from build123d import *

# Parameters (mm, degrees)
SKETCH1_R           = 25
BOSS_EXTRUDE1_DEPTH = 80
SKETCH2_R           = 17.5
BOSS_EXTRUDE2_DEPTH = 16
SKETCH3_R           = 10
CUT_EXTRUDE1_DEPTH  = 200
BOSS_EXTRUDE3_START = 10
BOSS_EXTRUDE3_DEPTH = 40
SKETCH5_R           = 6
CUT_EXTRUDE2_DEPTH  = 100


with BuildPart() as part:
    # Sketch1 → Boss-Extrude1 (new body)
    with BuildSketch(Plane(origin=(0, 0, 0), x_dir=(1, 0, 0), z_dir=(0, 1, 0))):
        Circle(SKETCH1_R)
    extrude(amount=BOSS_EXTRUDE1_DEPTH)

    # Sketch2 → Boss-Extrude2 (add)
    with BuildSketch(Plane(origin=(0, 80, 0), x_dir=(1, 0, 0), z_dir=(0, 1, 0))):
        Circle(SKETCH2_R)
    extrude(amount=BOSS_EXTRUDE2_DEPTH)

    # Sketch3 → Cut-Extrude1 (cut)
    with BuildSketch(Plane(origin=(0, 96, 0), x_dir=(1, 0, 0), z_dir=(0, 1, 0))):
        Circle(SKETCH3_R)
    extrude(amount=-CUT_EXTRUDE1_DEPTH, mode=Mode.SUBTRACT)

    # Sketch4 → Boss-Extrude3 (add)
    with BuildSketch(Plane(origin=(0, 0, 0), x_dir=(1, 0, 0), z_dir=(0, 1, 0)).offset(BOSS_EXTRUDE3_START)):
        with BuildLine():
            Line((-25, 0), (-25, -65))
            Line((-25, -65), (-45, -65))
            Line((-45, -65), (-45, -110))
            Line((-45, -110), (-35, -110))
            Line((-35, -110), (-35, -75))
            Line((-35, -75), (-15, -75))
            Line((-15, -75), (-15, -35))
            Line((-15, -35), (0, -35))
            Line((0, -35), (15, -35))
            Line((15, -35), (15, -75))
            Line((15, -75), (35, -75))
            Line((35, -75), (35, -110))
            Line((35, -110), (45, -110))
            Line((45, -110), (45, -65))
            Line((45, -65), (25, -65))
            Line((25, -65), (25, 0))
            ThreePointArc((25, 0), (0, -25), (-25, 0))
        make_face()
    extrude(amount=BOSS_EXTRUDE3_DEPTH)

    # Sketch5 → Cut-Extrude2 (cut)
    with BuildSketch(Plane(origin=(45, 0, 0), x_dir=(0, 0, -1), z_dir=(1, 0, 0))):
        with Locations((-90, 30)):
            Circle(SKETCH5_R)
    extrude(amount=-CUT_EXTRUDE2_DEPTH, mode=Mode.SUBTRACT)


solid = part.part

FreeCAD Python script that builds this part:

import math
import FreeCAD as App
import Part
import Sketcher
from FreeCAD import Vector

doc = App.newDocument("Part")
body = doc.addObject("PartDesign::Body", "Body")

sketch1 = doc.addObject("Sketcher::SketchObject", "Sketch")
body.addObject(sketch1)
sketch1.AttachmentSupport = (doc.XZ_Plane, [""])
sketch1.MapMode = "FlatFace"
sketch1.addGeometry(Part.Circle(Vector(0, 0, 0), Vector(0, 0, 1), 25), False)
sketch1.addConstraint(Sketcher.Constraint("Coincident", 0, 3, -1, 1))
sketch1.addConstraint(Sketcher.Constraint("Diameter", 0, 50.0))
pad1 = doc.addObject("PartDesign::Pad", "Pad")
body.addObject(pad1)
pad1.Profile = sketch1
pad1.Length = 80
pad1.Reversed = True

sketch2 = doc.addObject("Sketcher::SketchObject", "Sketch001")
body.addObject(sketch2)
sketch2.AttachmentSupport = (doc.XZ_Plane, [""])
sketch2.MapMode = "FlatFace"
sketch2.AttachmentOffset = App.Placement(Vector(0, 0, -80), App.Rotation())
sketch2.addGeometry(Part.Circle(Vector(0, 0, 0), Vector(0, 0, 1), 17.5), False)
sketch2.addConstraint(Sketcher.Constraint("Coincident", 0, 3, -1, 1))
sketch2.addConstraint(Sketcher.Constraint("Diameter", 0, 35.0))
pad2 = doc.addObject("PartDesign::Pad", "Pad001")
body.addObject(pad2)
pad2.Profile = sketch2
pad2.Length = 16
pad2.Reversed = True

sketch3 = doc.addObject("Sketcher::SketchObject", "Sketch002")
body.addObject(sketch3)
sketch3.AttachmentSupport = (doc.XZ_Plane, [""])
sketch3.MapMode = "FlatFace"
sketch3.AttachmentOffset = App.Placement(Vector(0, 0, -96), App.Rotation())
sketch3.addGeometry(Part.Circle(Vector(0, 0, 0), Vector(0, 0, 1), 10), False)
sketch3.addConstraint(Sketcher.Constraint("Coincident", 0, 3, -1, 1))
sketch3.addConstraint(Sketcher.Constraint("Diameter", 0, 20.0))
pocket1 = doc.addObject("PartDesign::Pocket", "Pocket")
body.addObject(pocket1)
pocket1.Profile = sketch3
pocket1.Length = 200
pocket1.Reversed = True

sketch4 = doc.addObject("Sketcher::SketchObject", "Sketch003")
body.addObject(sketch4)
sketch4.AttachmentSupport = (doc.XZ_Plane, [""])
sketch4.MapMode = "FlatFace"
sketch4.AttachmentOffset = App.Placement(Vector(0, 0, -10), App.Rotation())
sketch4.addGeometry(Part.LineSegment(Vector(-25, 0, 0), Vector(-25, 65, 0)), False)
sketch4.addGeometry(Part.LineSegment(Vector(-25, 65, 0), Vector(-45, 65, 0)), False)
sketch4.addGeometry(Part.LineSegment(Vector(-45, 65, 0), Vector(-45, 110, 0)), False)
sketch4.addGeometry(Part.LineSegment(Vector(-45, 110, 0), Vector(-35, 110, 0)), False)
sketch4.addGeometry(Part.LineSegment(Vector(-35, 110, 0), Vector(-35, 75, 0)), False)
sketch4.addGeometry(Part.LineSegment(Vector(-35, 75, 0), Vector(-15, 75, 0)), False)
sketch4.addGeometry(Part.LineSegment(Vector(-15, 75, 0), Vector(-15, 35, 0)), False)
sketch4.addGeometry(Part.LineSegment(Vector(-15, 35, 0), Vector(15, 35, 0)), False)
sketch4.addGeometry(Part.LineSegment(Vector(15, 35, 0), Vector(15, 75, 0)), False)
sketch4.addGeometry(Part.LineSegment(Vector(15, 75, 0), Vector(35, 75, 0)), False)
sketch4.addGeometry(Part.LineSegment(Vector(35, 75, 0), Vector(35, 110, 0)), False)
sketch4.addGeometry(Part.LineSegment(Vector(35, 110, 0), Vector(45, 110, 0)), False)
sketch4.addGeometry(Part.LineSegment(Vector(45, 110, 0), Vector(45, 65, 0)), False)
sketch4.addGeometry(Part.LineSegment(Vector(45, 65, 0), Vector(25, 65, 0)), False)
sketch4.addGeometry(Part.LineSegment(Vector(25, 65, 0), Vector(25, 0, 0)), False)
sketch4.addGeometry(Part.ArcOfCircle(Part.Circle(Vector(0, 0, 0), Vector(0, 0, 1), 25), math.radians(0), math.radians(180)), False)
sketch4.addConstraint(Sketcher.Constraint("Coincident", 0, 2, 1, 1))
sketch4.addConstraint(Sketcher.Constraint("Coincident", 1, 2, 2, 1))
sketch4.addConstraint(Sketcher.Constraint("Coincident", 2, 2, 3, 1))
sketch4.addConstraint(Sketcher.Constraint("Coincident", 3, 2, 4, 1))
sketch4.addConstraint(Sketcher.Constraint("Coincident", 4, 2, 5, 1))
sketch4.addConstraint(Sketcher.Constraint("Coincident", 5, 2, 6, 1))
sketch4.addConstraint(Sketcher.Constraint("Coincident", 6, 2, 7, 1))
sketch4.addConstraint(Sketcher.Constraint("Coincident", 7, 2, 8, 1))
sketch4.addConstraint(Sketcher.Constraint("Coincident", 8, 2, 9, 1))
sketch4.addConstraint(Sketcher.Constraint("Coincident", 9, 2, 10, 1))
sketch4.addConstraint(Sketcher.Constraint("Coincident", 10, 2, 11, 1))
sketch4.addConstraint(Sketcher.Constraint("Coincident", 11, 2, 12, 1))
sketch4.addConstraint(Sketcher.Constraint("Coincident", 12, 2, 13, 1))
sketch4.addConstraint(Sketcher.Constraint("Coincident", 13, 2, 14, 1))
sketch4.addConstraint(Sketcher.Constraint("Tangent", 14, 2, 15, 1))
sketch4.addConstraint(Sketcher.Constraint("Tangent", 15, 2, 0, 1))
sketch4.addConstraint(Sketcher.Constraint("Vertical", 0))
sketch4.addConstraint(Sketcher.Constraint("Horizontal", 1))
sketch4.addConstraint(Sketcher.Constraint("Vertical", 2))
sketch4.addConstraint(Sketcher.Constraint("Horizontal", 3))
sketch4.addConstraint(Sketcher.Constraint("Vertical", 4))
sketch4.addConstraint(Sketcher.Constraint("Horizontal", 5))
sketch4.addConstraint(Sketcher.Constraint("Vertical", 6))
sketch4.addConstraint(Sketcher.Constraint("Horizontal", 7))
sketch4.addConstraint(Sketcher.Constraint("Vertical", 8))
sketch4.addConstraint(Sketcher.Constraint("Horizontal", 9))
sketch4.addConstraint(Sketcher.Constraint("Vertical", 10))
sketch4.addConstraint(Sketcher.Constraint("Horizontal", 11))
sketch4.addConstraint(Sketcher.Constraint("Vertical", 12))
sketch4.addConstraint(Sketcher.Constraint("Horizontal", 13))
sketch4.addConstraint(Sketcher.Constraint("Vertical", 14))
sketch4.addConstraint(Sketcher.Constraint("Coincident", 15, 3, -1, 1))
sketch4.addConstraint(Sketcher.Constraint("Symmetric", 5, 2, 8, 2, -2))
sketch4.addConstraint(Sketcher.Constraint("Symmetric", 3, 2, 10, 2, -2))
sketch4.addConstraint(Sketcher.Constraint("Symmetric", 1, 2, 12, 2, -2))
sketch4.addConstraint(Sketcher.Constraint("Equal", 1, 5))
sketch4.addConstraint(Sketcher.Constraint("Radius", 15, 25.0))
sketch4.addConstraint(Sketcher.Constraint("DistanceX", 1, 2, 1, 1, 20.0))
sketch4.addConstraint(Sketcher.Constraint("DistanceX", 3, 1, 3, 2, 10.0))
sketch4.addConstraint(Sketcher.Constraint("DistanceY", 0, 1, 0, 2, 65.0))
sketch4.addConstraint(Sketcher.Constraint("DistanceY", 2, 1, 2, 2, 45.0))
sketch4.addConstraint(Sketcher.Constraint("DistanceY", 4, 2, 4, 1, 35.0))
sketch4.addConstraint(Sketcher.Constraint("DistanceY", 6, 2, 6, 1, 40.0))
pad3 = doc.addObject("PartDesign::Pad", "Pad002")
body.addObject(pad3)
pad3.Profile = sketch4
pad3.Length = 40
pad3.Reversed = True

sketch5 = doc.addObject("Sketcher::SketchObject", "Sketch004")
body.addObject(sketch5)
sketch5.AttachmentSupport = (doc.YZ_Plane, [""])
sketch5.MapMode = "FlatFace"
sketch5.AttachmentOffset = App.Placement(Vector(0, 0, 45), App.Rotation())
sketch5.addGeometry(Part.Circle(Vector(30, 90, 0), Vector(0, 0, 1), 6), False)
sketch5.addConstraint(Sketcher.Constraint("Diameter", 0, 12.0))
sketch5.addConstraint(Sketcher.Constraint("DistanceX", -1, 1, 0, 3, 30.0))
sketch5.addConstraint(Sketcher.Constraint("DistanceY", -1, 1, 0, 3, 90.0))
pocket2 = doc.addObject("PartDesign::Pocket", "Pocket001")
body.addObject(pocket2)
pocket2.Profile = sketch5
pocket2.Length = 100

doc.recompute()
